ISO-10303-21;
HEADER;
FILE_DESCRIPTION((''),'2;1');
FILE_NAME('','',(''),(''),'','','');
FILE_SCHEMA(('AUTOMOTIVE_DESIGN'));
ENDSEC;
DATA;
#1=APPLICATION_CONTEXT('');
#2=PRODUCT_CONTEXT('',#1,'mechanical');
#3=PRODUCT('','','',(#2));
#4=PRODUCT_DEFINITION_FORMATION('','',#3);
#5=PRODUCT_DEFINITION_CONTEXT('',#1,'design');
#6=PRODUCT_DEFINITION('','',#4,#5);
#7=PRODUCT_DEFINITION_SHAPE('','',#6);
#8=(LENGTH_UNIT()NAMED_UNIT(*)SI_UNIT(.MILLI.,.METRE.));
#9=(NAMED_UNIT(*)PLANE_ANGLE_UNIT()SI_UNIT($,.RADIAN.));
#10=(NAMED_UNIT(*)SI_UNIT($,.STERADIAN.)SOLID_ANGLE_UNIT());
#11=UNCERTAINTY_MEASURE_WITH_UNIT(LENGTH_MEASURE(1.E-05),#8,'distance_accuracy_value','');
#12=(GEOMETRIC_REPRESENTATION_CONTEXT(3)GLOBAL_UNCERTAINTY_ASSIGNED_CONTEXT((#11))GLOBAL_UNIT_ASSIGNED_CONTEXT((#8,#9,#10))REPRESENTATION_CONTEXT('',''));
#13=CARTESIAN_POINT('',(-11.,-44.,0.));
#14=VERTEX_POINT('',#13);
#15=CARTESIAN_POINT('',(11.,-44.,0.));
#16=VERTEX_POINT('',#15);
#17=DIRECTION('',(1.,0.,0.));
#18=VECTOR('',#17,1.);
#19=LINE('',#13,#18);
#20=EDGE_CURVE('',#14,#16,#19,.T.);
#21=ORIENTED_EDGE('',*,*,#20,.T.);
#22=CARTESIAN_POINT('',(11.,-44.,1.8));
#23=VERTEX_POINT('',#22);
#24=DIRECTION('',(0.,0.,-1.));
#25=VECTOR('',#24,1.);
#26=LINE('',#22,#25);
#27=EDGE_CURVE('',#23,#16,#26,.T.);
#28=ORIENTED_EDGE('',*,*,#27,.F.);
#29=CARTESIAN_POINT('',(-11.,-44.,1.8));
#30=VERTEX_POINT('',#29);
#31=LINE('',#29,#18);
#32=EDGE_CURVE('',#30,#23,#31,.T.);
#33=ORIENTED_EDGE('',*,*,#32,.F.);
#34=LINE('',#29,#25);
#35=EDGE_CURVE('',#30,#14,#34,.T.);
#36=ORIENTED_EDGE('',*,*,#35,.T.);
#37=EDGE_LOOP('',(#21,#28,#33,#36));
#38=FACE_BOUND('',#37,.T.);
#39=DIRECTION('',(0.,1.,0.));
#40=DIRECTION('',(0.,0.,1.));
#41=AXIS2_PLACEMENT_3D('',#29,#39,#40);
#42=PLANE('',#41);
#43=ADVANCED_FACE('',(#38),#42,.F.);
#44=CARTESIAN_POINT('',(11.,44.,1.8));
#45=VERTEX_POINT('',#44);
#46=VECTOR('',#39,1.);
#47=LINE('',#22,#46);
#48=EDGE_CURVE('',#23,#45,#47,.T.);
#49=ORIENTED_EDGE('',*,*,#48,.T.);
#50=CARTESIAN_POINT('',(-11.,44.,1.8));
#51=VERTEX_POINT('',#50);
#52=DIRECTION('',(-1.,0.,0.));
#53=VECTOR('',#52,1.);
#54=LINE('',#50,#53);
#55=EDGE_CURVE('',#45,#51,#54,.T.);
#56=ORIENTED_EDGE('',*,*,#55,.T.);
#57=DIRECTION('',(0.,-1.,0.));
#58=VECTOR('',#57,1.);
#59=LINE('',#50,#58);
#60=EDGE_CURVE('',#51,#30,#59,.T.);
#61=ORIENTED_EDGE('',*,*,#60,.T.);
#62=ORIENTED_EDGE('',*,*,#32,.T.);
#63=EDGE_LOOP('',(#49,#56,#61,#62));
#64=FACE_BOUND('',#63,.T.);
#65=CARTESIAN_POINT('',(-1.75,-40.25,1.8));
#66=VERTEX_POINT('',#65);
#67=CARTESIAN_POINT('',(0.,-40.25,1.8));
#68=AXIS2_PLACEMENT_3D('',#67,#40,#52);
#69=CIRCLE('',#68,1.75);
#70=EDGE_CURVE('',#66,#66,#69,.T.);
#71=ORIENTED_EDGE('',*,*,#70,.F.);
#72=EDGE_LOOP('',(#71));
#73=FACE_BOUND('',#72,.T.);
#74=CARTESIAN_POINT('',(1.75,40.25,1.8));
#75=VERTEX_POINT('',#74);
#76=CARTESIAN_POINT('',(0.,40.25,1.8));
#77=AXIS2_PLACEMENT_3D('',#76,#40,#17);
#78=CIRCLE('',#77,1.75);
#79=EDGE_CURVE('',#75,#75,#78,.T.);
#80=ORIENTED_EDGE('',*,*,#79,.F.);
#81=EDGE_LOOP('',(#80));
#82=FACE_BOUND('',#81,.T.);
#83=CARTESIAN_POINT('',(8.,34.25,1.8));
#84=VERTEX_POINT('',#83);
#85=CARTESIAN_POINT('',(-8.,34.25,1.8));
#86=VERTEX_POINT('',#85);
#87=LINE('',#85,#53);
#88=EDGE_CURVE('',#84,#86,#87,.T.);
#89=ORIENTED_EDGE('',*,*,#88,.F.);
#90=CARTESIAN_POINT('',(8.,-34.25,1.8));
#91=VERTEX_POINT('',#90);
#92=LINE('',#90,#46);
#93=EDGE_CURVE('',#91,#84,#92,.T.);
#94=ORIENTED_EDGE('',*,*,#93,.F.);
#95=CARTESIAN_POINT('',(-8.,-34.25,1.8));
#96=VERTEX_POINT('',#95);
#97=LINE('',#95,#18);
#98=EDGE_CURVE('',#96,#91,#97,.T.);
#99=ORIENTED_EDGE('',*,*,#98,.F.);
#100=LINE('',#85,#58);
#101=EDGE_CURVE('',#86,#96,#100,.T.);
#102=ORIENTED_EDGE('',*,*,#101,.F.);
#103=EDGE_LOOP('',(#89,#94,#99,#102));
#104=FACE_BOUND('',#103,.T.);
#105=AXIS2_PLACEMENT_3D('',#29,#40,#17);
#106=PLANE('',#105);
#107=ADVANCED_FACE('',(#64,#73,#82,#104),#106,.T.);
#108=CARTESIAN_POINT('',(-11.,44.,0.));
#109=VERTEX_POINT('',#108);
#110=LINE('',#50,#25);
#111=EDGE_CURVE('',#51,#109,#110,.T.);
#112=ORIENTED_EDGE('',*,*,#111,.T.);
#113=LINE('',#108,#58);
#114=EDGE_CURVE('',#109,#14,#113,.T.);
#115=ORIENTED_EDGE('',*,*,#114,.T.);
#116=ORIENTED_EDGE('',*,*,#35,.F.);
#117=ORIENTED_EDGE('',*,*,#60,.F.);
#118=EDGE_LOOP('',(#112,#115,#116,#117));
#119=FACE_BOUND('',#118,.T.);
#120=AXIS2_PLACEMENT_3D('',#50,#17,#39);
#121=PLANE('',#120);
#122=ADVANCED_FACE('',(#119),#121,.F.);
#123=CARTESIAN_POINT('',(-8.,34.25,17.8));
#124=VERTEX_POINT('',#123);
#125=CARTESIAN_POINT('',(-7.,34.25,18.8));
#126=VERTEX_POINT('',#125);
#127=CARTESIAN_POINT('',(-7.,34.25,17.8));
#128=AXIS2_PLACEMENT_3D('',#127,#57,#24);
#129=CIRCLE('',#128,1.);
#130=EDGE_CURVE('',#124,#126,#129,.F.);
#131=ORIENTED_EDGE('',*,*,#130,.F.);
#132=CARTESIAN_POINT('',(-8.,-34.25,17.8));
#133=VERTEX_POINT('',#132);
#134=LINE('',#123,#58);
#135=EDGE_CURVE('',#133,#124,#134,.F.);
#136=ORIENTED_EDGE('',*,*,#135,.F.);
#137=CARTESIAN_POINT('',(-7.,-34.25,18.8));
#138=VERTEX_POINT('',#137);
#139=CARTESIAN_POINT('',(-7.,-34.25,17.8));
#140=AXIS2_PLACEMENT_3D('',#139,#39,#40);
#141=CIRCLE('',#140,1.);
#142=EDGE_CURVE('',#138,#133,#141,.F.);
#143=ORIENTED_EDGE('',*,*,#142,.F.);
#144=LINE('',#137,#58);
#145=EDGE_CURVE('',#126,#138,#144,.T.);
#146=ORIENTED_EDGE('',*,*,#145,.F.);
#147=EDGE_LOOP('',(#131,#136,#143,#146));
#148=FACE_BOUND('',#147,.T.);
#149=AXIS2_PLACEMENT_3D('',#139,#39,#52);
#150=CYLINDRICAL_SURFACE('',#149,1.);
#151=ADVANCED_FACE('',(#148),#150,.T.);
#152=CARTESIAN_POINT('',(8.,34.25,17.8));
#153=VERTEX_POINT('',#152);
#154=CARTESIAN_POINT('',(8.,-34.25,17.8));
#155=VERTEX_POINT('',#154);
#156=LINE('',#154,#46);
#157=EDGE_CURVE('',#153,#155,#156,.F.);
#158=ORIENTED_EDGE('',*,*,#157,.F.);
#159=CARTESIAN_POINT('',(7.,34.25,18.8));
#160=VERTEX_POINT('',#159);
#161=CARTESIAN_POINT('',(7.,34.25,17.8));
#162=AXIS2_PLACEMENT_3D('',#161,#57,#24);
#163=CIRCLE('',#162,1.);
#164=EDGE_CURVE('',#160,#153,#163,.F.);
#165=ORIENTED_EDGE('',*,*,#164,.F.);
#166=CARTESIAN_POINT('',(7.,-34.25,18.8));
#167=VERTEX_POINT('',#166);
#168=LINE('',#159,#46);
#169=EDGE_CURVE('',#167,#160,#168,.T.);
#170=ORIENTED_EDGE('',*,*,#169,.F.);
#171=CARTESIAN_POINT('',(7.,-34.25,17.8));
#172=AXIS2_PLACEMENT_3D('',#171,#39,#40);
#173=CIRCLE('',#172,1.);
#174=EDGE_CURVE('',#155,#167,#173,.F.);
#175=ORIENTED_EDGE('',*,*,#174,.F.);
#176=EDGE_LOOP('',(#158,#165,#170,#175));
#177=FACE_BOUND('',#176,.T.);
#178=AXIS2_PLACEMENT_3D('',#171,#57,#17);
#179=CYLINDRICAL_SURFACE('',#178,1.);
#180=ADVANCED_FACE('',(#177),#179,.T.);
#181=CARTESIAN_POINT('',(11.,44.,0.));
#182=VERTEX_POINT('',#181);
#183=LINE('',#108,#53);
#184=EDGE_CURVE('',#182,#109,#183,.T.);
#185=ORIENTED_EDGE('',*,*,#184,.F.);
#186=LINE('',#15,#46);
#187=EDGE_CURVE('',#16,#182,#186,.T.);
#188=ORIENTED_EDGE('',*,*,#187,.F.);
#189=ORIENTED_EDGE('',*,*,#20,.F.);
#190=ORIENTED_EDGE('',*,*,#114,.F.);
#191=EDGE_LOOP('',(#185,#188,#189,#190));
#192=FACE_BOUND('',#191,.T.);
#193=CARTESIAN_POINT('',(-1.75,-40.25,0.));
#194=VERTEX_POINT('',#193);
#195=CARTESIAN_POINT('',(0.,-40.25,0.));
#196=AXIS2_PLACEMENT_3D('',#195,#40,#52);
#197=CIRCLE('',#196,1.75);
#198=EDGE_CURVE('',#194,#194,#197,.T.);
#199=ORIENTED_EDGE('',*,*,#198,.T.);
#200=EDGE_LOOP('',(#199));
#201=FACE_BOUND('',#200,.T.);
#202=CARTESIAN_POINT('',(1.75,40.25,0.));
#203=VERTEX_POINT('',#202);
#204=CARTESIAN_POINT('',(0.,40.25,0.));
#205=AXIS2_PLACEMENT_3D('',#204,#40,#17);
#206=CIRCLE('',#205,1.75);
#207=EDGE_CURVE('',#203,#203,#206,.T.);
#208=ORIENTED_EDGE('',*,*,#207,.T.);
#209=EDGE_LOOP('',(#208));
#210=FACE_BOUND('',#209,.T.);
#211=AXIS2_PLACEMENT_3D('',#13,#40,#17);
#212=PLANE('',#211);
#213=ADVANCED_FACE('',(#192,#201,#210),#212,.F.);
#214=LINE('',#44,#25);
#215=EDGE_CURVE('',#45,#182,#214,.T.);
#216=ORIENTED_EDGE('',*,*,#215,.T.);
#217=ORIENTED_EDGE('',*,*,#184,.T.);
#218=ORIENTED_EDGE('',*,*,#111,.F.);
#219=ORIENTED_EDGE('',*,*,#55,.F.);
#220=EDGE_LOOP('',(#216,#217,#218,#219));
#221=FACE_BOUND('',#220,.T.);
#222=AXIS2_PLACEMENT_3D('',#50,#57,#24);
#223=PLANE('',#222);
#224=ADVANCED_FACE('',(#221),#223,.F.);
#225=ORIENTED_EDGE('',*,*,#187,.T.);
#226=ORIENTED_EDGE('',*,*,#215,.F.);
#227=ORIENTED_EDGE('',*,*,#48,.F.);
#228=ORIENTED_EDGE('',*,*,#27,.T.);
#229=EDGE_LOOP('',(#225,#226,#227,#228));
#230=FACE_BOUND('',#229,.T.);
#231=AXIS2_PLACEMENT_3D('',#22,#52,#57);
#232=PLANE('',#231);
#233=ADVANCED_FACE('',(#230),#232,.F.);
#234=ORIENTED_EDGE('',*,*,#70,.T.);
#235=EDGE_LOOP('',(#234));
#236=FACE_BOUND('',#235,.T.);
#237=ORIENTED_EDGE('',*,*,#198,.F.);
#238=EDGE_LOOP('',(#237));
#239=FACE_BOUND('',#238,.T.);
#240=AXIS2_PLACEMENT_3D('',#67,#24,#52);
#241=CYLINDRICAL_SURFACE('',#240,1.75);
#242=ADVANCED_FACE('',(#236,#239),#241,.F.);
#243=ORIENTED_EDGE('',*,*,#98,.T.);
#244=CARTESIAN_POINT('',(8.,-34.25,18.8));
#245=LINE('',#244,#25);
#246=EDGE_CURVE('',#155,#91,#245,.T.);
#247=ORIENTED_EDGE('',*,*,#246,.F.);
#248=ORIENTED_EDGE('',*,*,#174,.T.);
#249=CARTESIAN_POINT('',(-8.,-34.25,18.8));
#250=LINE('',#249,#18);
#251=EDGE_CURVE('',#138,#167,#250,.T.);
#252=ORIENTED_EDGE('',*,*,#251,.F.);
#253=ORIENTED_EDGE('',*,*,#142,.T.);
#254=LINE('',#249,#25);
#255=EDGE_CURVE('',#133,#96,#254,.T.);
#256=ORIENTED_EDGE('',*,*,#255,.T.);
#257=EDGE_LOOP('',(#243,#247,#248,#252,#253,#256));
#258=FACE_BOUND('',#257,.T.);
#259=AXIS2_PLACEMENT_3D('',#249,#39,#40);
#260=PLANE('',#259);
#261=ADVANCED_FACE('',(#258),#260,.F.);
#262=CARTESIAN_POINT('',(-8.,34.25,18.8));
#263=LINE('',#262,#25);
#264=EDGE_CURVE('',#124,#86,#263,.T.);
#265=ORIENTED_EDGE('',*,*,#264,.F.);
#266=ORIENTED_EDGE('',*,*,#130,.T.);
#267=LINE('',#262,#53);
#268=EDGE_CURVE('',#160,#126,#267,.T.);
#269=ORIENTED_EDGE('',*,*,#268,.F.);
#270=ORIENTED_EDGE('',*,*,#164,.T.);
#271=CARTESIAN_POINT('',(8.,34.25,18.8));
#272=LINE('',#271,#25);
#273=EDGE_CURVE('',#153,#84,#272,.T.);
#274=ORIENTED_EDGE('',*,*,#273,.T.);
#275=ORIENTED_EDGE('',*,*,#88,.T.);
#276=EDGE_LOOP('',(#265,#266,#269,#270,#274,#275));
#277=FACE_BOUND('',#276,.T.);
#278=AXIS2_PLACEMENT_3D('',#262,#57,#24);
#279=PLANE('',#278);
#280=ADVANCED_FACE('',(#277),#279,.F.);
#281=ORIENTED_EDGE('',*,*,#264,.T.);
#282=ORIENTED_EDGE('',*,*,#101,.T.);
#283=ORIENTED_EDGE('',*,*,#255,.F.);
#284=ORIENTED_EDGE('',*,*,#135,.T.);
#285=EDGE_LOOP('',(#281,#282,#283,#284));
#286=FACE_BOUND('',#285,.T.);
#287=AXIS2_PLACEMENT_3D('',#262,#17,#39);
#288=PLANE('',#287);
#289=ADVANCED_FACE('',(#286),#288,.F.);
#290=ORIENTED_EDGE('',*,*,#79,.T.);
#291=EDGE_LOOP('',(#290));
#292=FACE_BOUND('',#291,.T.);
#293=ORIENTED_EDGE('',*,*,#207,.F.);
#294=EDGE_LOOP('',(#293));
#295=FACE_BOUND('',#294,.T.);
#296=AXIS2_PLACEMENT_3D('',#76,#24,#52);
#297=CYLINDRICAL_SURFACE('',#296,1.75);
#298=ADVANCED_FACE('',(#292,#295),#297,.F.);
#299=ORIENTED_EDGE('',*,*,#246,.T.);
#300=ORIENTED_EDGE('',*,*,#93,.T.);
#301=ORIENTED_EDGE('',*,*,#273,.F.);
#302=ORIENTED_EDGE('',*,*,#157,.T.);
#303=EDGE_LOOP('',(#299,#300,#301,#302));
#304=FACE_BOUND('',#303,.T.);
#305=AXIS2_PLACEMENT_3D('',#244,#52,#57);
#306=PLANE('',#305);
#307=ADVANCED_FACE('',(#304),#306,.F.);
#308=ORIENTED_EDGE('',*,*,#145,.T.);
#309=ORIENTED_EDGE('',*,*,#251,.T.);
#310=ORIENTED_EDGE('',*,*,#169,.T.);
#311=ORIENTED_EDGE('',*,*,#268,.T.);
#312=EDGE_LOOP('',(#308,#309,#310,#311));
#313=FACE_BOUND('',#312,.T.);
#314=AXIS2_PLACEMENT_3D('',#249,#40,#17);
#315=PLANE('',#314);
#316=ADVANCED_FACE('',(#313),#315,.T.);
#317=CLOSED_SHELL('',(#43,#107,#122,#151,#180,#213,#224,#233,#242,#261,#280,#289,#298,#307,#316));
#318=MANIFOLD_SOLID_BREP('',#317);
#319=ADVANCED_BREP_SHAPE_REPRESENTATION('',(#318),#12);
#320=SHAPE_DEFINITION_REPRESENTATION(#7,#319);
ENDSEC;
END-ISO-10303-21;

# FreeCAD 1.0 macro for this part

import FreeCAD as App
import Part
import Sketcher
from FreeCAD import Vector
Q = App.Units.Quantity


def edges_at(feature, points):
    """Names of the edges that pass closest to the given points."""
    edges = feature.Shape.Edges
    near = lambda p: min(range(len(edges)), key=lambda i: edges[i].distToShape(Part.Vertex(*p))[0])
    return sorted({f"Edge{near(p) + 1}" for p in points})


def add_polygon(sketch, points):
    """Adds a closed chain of lines whose ends are joined by coincident constraints."""
    first, n = sketch.GeometryCount, len(points)
    for a, b in zip(points, points[1:] + points[:1]):
        sketch.addGeometry(Part.LineSegment(App.Vector(*a, 0), App.Vector(*b, 0)), False)
    for i in range(n):
        sketch.addConstraint(Sketcher.Constraint("Coincident", first + i, 2, first + (i + 1) % n, 1))

doc = App.newDocument("Part")
body = doc.addObject("PartDesign::Body", "Body")

# Sketch on XY plane
sketch1 = doc.addObject("Sketcher::SketchObject", "Sketch")
body.addObject(sketch1)
sketch1.AttachmentSupport = (doc.XY_Plane, [""])
sketch1.MapMode = "FlatFace"
add_polygon(sketch1, [(-11, 44), (-11, -44), (11, -44), (11, 44)])  # lines 0-3
sketch1.addGeometry(Part.Circle(Vector(0, -40.25, 0), Vector(0, 0, 1), 1.75), False)  # 4
sketch1.addGeometry(Part.Circle(Vector(0, 40.25, 0), Vector(0, 0, 1), 1.75), False)  # 5
sketch1.addConstraint(Sketcher.Constraint("Vertical", 0))
sketch1.addConstraint(Sketcher.Constraint("Horizontal", 1))
sketch1.addConstraint(Sketcher.Constraint("Vertical", 2))
sketch1.addConstraint(Sketcher.Constraint("Horizontal", 3))
sketch1.addConstraint(Sketcher.Constraint("Equal", 4, 5))
sketch1.addConstraint(Sketcher.Constraint("Symmetric", 4, 3, 5, 3, -1, 1))
sketch1.addConstraint(Sketcher.Constraint("Symmetric", 0, 2, 2, 2, -1, 1))
sketch1.addConstraint(Sketcher.Constraint("PointOnObject", 4, 3, -2))
sketch1.addConstraint(Sketcher.Constraint("Diameter", 4, Q("3.5 mm")))
sketch1.addConstraint(Sketcher.Constraint("DistanceX", 1, 1, 1, 2, Q("22 mm")))
sketch1.addConstraint(Sketcher.Constraint("DistanceY", 0, 2, 0, 1, Q("88 mm")))
sketch1.addConstraint(Sketcher.Constraint("DistanceY", 4, 3, 5, 3, Q("80.5 mm")))
pad1 = doc.addObject("PartDesign::Pad", "Pad")
body.addObject(pad1)
pad1.Profile = sketch1
pad1.Length = 1.8

# Sketch on XY plane
sketch2 = doc.addObject("Sketcher::SketchObject", "Sketch001")
body.addObject(sketch2)
sketch2.AttachmentSupport = (doc.XY_Plane, [""])
sketch2.MapMode = "FlatFace"
sketch2.AttachmentOffset = App.Placement(Vector(0, 0, 1.8), App.Rotation())
add_polygon(sketch2, [(-8, 34.25), (-8, -34.25), (8, -34.25), (8, 34.25)])  # lines 0-3
sketch2.addConstraint(Sketcher.Constraint("Vertical", 0))
sketch2.addConstraint(Sketcher.Constraint("Horizontal", 1))
sketch2.addConstraint(Sketcher.Constraint("Vertical", 2))
sketch2.addConstraint(Sketcher.Constraint("Horizontal", 3))
sketch2.addConstraint(Sketcher.Constraint("Symmetric", 0, 2, 2, 2, -1, 1))
sketch2.addConstraint(Sketcher.Constraint("DistanceX", 1, 1, 1, 2, Q("16 mm")))
sketch2.addConstraint(Sketcher.Constraint("DistanceY", 0, 2, 0, 1, Q("68.5 mm")))
pad2 = doc.addObject("PartDesign::Pad", "Pad001")
body.addObject(pad2)
pad2.Profile = sketch2
pad2.Length = 17
doc.recompute()

fillet = doc.addObject("PartDesign::Fillet", "Fillet")
body.addObject(fillet)
fillet.Base = (pad2, edges_at(pad2, [(-8, 0, 18.8), (8, 0, 18.8)]))
fillet.Radius = 1

doc.recompute()
